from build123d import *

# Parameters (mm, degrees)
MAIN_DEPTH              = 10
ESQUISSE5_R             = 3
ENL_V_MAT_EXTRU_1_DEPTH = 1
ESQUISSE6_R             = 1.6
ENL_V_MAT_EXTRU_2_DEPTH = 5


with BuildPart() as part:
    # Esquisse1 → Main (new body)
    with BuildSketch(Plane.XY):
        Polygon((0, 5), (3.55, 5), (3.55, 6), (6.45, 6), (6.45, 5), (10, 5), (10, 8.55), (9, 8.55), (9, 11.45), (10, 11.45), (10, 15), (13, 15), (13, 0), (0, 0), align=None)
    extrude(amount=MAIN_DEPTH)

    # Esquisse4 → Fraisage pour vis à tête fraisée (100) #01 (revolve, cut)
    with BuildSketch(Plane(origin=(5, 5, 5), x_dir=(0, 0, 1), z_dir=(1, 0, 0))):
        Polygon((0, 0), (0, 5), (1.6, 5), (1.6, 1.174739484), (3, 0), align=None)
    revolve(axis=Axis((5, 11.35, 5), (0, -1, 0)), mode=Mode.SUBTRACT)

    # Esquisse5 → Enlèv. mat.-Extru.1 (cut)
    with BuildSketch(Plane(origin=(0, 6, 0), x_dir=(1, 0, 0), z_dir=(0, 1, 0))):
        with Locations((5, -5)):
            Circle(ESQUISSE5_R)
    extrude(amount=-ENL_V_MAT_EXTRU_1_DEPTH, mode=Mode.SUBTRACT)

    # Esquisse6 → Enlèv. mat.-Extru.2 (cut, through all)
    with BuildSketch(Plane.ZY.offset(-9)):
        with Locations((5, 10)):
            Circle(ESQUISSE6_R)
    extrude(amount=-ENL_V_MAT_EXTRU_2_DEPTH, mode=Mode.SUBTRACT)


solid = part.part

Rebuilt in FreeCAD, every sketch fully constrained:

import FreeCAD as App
import Part
import Sketcher
Q = App.Units.Quantity


def add_polygon(sketch, points):
    """Adds a closed chain of lines whose ends are joined by coincident constraints."""
    first, n = sketch.GeometryCount, len(points)
    for a, b in zip(points, points[1:] + points[:1]):
        sketch.addGeometry(Part.LineSegment(App.Vector(*a, 0), App.Vector(*b, 0)), False)
    for i in range(n):
        sketch.addConstraint(Sketcher.Constraint("Coincident", first + i, 2, first + (i + 1) % n, 1))

doc = App.newDocument("Part")
params = doc.addObject("Spreadsheet::Sheet", "Params")
for row, (alias, value) in enumerate([
    ("sketch1_width", "13 mm"),
    ("sketch1_width2", "3 mm"),
    ("sketch1_width3", "1 mm"),
    ("sketch1_height", "5 mm"),
    ("sketch1_width4", "2.9 mm"),
    ("pad1_length", "10 mm"),
    ("sketch2_width", "5 mm"),
    ("sketch2_height", "3 mm"),
    ("sketch2_height2", "1.6 mm"),
    ("groove_angle", "360 deg"),
    ("sketch3_diameter", "6 mm"),
    ("pocket1_length", "1 mm"),
    ("sketch4_diameter", "3.2 mm"),
], start=1):
    params.set(f"A{row}", alias)
    params.set(f"B{row}", "=" + value)
    params.setAlias(f"B{row}", alias)

body = doc.addObject("PartDesign::Body", "Body")

sketch1 = body.newObject("Sketcher::SketchObject", "Sketch")
sketch1.AttachmentSupport = (doc.getObject("XY_Plane"), [""])
sketch1.MapMode = "FlatFace"
add_polygon(sketch1, [(3.5, 5), (0, 5), (0, 0), (13, 0), (13, 15), (10, 15), (10, 11.4), (9, 11.4), (9, 8.6), (10, 8.6), (10, 5), (6.5, 5), (6.5, 6), (3.5, 6)])
sketch1.addConstraint([
    Sketcher.Constraint("Horizontal", 0),
    Sketcher.Constraint("Vertical", 1),
    Sketcher.Constraint("Horizontal", 2),
    Sketcher.Constraint("Vertical", 3),
    Sketcher.Constraint("Horizontal", 4),
    Sketcher.Constraint("Vertical", 5),
    Sketcher.Constraint("Horizontal", 6),
    Sketcher.Constraint("Vertical", 7),
    Sketcher.Constraint("Horizontal", 8),
    Sketcher.Constraint("Vertical", 9),
    Sketcher.Constraint("Horizontal", 10),
    Sketcher.Constraint("Vertical", 11),
    Sketcher.Constraint("Horizontal", 12),
    Sketcher.Constraint("Vertical", 13),
    Sketcher.Constraint("Coincident", 1, 2, -1, 1),
    Sketcher.Constraint("Horizontal", 0, 2, 9, 2),
    Sketcher.Constraint("Vertical", 5, 2, 8, 2),
    Sketcher.Constraint("Equal", 0, 10),
    Sketcher.Constraint("Equal", 10, 5),
    Sketcher.Constraint("Equal", 12, 7),
    Sketcher.Constraint("Equal", 5, 9),
    Sketcher.Constraint("Equal", 8, 11),
    Sketcher.Constraint("DistanceX", 2, 1, 2, 2, Q("13 mm")),
    Sketcher.Constraint("DistanceX", 4, 2, 4, 1, Q("3 mm")),
    Sketcher.Constraint("DistanceX", 6, 2, 6, 1, Q("1 mm")),
    Sketcher.Constraint("DistanceY", 1, 2, 1, 1, Q("5 mm")),
    Sketcher.Constraint("DistanceX", 12, 2, 12, 1, Q("2.9 mm")),
])
sketch1.setExpression("Constraints[36]", "Params.sketch1_width")
sketch1.setExpression("Constraints[37]", "Params.sketch1_width2")
sketch1.setExpression("Constraints[38]", "Params.sketch1_width3")
sketch1.setExpression("Constraints[39]", "Params.sketch1_height")
sketch1.setExpression("Constraints[40]", "Params.sketch1_width4")
pad1 = body.newObject("PartDesign::Pad", "Pad")
pad1.Profile = sketch1
pad1.setExpression("Length", "Params.pad1_length")

sketch2 = body.newObject("Sketcher::SketchObject", "Sketch001")
sketch2.AttachmentSupport = (doc.getObject("YZ_Plane"), [""])
sketch2.MapMode = "FlatFace"
sketch2.AttachmentOffset = App.Placement(App.Vector(0, 0, 5), App.Rotation())
add_polygon(sketch2, [(0, 5), (5, 5), (5, 8), (3.8, 6.6), (0, 6.6)])
sketch2.addGeometry(Part.LineSegment(App.Vector(5, 5, 0), App.Vector(0, 5, 0)), True)
sketch2.addConstraint([
    Sketcher.Constraint("Horizontal", 0),
    Sketcher.Constraint("Vertical", 1),
    Sketcher.Constraint("Horizontal", 3),
    Sketcher.Constraint("Vertical", 4),
    Sketcher.Constraint("Horizontal", 5),
    Sketcher.Constraint("Coincident", 5, 1, 0, 2),
    Sketcher.Constraint("PointOnObject", 3, 2, -2),
    Sketcher.Constraint("PointOnObject", 5, 2, -2),
    Sketcher.Constraint("DistanceX", 0, 1, 0, 2, Q("5 mm")),
    Sketcher.Constraint("DistanceY", 1, 1, 1, 2, Q("3 mm")),
    Sketcher.Constraint("Angle", 2, Q("-130 deg")),
    Sketcher.Constraint("DistanceY", 4, 2, 4, 1, Q("1.6 mm")),
    Sketcher.Constraint("DistanceY", -1, 1, 0, 2, Q("5 mm")),
])
sketch2.setExpression("Constraints[13]", "Params.sketch2_width")
sketch2.setExpression("Constraints[14]", "Params.sketch2_height")
sketch2.setExpression("Constraints[16]", "Params.sketch2_height2")
groove = body.newObject("PartDesign::Groove", "Groove")
groove.Profile = sketch2
groove.ReferenceAxis = (sketch2, ["Axis0"])
groove.setExpression("Angle", "Params.groove_angle")

sketch3 = body.newObject("Sketcher::SketchObject", "Sketch002")
sketch3.AttachmentSupport = (doc.getObject("XZ_Plane"), [""])
sketch3.MapMode = "FlatFace"
sketch3.AttachmentOffset = App.Placement(App.Vector(0, 0, -6), App.Rotation())
sketch3.addGeometry(Part.Circle(App.Vector(5, 5, 0), App.Vector(0, 0, 1), 3), False)
sketch3.addConstraint([
    Sketcher.Constraint("Diameter", 0, Q("6 mm")),
    Sketcher.Constraint("DistanceX", -1, 1, 0, 3, Q("5 mm")),
    Sketcher.Constraint("DistanceY", -1, 1, 0, 3, Q("5 mm")),
])
sketch3.setExpression("Constraints[0]", "Params.sketch3_diameter")
pocket1 = body.newObject("PartDesign::Pocket", "Pocket")
pocket1.Profile = sketch3
pocket1.setExpression("Length", "Params.pocket1_length")
pocket1.Reversed = True

sketch4 = body.newObject("Sketcher::SketchObject", "Sketch003")
sketch4.AttachmentSupport = (doc.getObject("YZ_Plane"), [""])
sketch4.MapMode = "FlatFace"
sketch4.AttachmentOffset = App.Placement(App.Vector(0, 0, 9), App.Rotation())
sketch4.addGeometry(Part.Circle(App.Vector(10, 5, 0), App.Vector(0, 0, 1), 1.6), False)
sketch4.addConstraint([
    Sketcher.Constraint("Diameter", 0, Q("3.2 mm")),
    Sketcher.Constraint("DistanceX", -1, 1, 0, 3, Q("10 mm")),
    Sketcher.Constraint("DistanceY", -1, 1, 0, 3, Q("5 mm")),
])
sketch4.setExpression("Constraints[0]", "Params.sketch4_diameter")
pocket2 = body.newObject("PartDesign::Pocket", "Pocket001")
pocket2.Profile = sketch4
pocket2.Type = "ThroughAll"
pocket2.Reversed = True

doc.recompute()
